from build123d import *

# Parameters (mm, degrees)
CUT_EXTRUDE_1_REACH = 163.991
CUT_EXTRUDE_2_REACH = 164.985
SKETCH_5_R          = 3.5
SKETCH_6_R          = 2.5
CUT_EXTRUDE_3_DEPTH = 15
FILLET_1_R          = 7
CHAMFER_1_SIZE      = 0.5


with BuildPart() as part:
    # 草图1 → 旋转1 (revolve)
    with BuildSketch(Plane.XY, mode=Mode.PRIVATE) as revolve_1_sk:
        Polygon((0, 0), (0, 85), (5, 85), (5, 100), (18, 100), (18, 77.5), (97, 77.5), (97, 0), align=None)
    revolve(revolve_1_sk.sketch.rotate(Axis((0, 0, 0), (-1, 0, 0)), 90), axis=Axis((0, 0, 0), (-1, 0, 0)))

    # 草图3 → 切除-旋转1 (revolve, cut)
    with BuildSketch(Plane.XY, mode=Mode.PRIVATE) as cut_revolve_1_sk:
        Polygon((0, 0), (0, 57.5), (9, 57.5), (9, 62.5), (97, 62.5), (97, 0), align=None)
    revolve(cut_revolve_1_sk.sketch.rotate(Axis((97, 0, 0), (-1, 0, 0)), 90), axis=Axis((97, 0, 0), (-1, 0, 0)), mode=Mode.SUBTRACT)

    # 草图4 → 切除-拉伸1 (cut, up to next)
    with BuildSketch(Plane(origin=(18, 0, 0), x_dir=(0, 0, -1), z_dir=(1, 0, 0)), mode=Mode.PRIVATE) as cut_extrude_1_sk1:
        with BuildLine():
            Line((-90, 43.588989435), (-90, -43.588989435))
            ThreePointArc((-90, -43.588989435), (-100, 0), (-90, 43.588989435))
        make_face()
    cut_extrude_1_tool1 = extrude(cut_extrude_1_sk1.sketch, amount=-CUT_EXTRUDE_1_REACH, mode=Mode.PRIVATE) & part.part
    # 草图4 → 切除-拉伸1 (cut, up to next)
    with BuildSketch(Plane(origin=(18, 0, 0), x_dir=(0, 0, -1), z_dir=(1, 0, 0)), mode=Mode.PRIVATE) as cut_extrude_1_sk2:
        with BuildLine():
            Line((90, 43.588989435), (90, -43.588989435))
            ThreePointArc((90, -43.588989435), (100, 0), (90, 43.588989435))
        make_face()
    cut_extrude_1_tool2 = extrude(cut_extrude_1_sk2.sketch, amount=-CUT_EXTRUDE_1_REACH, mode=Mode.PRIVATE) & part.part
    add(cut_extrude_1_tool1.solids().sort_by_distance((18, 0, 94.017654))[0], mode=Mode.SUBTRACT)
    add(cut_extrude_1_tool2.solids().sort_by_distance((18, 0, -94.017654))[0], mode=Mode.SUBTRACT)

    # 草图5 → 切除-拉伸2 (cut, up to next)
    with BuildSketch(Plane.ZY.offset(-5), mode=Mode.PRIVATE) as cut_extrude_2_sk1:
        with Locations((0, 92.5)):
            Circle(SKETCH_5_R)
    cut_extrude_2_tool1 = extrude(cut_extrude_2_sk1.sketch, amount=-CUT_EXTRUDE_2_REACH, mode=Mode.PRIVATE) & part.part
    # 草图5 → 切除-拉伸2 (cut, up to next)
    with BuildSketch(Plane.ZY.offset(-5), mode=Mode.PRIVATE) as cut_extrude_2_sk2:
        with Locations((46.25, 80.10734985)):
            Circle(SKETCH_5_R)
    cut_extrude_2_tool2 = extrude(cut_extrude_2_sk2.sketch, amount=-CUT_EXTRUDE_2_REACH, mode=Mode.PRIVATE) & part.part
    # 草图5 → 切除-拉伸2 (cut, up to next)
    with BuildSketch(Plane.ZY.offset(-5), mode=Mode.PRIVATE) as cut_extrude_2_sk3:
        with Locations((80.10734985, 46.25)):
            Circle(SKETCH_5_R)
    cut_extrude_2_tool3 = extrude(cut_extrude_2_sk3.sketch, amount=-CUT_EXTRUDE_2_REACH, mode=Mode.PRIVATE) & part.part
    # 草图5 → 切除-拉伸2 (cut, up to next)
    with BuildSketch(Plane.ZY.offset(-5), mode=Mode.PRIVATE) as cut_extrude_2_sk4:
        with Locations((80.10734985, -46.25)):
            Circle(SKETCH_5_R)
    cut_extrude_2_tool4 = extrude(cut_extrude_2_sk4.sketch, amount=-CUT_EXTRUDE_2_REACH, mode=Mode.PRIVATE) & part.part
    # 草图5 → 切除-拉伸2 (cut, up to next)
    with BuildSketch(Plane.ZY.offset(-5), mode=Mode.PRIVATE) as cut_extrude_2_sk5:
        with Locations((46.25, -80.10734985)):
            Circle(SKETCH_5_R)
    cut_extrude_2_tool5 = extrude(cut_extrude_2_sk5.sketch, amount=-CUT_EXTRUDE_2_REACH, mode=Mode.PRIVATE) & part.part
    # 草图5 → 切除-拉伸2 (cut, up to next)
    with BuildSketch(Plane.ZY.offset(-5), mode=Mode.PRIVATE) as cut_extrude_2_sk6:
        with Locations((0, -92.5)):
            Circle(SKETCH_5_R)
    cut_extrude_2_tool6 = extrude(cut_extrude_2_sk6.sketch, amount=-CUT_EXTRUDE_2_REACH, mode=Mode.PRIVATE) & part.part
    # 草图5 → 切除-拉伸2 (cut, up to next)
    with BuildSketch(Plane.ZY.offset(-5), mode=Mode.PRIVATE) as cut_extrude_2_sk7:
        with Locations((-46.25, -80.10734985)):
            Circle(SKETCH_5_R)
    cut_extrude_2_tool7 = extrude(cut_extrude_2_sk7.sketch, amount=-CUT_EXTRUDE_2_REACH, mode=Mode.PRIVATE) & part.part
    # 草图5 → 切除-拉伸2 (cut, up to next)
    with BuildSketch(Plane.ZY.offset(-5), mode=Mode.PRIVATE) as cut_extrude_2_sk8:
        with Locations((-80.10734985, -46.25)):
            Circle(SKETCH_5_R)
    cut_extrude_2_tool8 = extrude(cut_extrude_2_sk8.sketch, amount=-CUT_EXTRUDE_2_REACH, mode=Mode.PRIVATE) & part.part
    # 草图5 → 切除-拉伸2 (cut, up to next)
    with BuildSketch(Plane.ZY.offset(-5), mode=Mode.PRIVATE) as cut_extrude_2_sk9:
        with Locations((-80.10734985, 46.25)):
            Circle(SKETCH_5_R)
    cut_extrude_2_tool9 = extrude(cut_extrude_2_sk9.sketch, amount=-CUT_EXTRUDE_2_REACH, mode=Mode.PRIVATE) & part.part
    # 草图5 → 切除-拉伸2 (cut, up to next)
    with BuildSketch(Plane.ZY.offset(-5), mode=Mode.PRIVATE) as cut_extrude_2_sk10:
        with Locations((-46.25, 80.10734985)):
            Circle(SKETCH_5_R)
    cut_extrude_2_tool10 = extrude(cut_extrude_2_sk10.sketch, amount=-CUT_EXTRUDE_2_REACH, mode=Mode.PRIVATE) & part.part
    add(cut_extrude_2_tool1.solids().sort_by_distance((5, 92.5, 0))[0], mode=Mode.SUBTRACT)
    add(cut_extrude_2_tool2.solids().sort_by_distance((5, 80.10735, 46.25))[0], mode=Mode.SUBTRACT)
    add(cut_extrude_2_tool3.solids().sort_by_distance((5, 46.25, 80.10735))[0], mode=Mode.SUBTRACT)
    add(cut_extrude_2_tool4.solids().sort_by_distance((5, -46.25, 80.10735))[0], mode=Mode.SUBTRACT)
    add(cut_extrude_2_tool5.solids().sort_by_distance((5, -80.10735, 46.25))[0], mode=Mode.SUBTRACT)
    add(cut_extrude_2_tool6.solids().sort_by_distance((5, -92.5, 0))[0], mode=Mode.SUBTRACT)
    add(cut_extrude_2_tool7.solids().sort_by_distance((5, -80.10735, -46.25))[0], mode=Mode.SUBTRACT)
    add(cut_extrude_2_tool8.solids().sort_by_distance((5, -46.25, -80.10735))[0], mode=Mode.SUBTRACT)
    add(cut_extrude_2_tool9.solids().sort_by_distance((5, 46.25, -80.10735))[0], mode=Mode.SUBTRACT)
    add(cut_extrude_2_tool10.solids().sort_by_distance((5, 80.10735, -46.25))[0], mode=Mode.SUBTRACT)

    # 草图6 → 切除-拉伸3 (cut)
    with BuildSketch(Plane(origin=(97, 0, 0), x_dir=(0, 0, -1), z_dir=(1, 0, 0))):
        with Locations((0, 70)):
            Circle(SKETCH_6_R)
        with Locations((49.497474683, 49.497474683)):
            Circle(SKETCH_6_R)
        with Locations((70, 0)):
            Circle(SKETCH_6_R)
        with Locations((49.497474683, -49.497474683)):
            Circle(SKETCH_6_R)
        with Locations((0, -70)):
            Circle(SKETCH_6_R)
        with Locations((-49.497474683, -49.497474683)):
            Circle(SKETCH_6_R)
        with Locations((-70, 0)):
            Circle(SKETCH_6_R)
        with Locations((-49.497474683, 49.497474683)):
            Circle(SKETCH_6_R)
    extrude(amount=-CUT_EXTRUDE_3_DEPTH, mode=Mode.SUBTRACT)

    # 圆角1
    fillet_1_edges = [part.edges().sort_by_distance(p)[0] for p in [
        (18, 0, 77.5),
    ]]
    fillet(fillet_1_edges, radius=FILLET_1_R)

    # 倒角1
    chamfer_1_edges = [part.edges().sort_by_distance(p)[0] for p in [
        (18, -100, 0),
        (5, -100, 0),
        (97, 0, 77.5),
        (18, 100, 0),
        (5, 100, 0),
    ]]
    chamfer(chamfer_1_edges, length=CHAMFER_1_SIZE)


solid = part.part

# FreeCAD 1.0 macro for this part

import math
import FreeCAD as App
import Part
import Sketcher
from FreeCAD import Vector


def edges_at(feature, points):
    """Names of the edges that pass closest to the given points."""
    edges = feature.Shape.Edges
    near = lambda p: min(range(len(edges)), key=lambda i: edges[i].distToShape(Part.Vertex(*p))[0])
    return sorted({f"Edge{near(p) + 1}" for p in points})


def add_polygon(sketch, points):
    """Adds a closed chain of lines whose ends are joined by coincident constraints."""
    first, n = sketch.GeometryCount, len(points)
    for a, b in zip(points, points[1:] + points[:1]):
        sketch.addGeometry(Part.LineSegment(App.Vector(*a, 0), App.Vector(*b, 0)), False)
    for i in range(n):
        sketch.addConstraint(Sketcher.Constraint("Coincident", first + i, 2, first + (i + 1) % n, 1))

doc = App.newDocument("Part")
body = doc.addObject("PartDesign::Body", "Body")

# Sketch on XY plane
sketch1 = body.newObject("Sketcher::SketchObject", "Sketch")
sketch1.AttachmentSupport = (doc.getObject("XY_Plane"), [""])
sketch1.MapMode = "FlatFace"
add_polygon(sketch1, [(0, 85), (0, 0), (97, 0), (97, 78), (18, 78), (18, 100), (5, 100), (5, 85)])  # lines 0-7
sketch1.addConstraint(Sketcher.Constraint("Vertical", 0))
sketch1.addConstraint(Sketcher.Constraint("Horizontal", 1))
sketch1.addConstraint(Sketcher.Constraint("Vertical", 2))
sketch1.addConstraint(Sketcher.Constraint("Horizontal", 3))
sketch1.addConstraint(Sketcher.Constraint("Vertical", 4))
sketch1.addConstraint(Sketcher.Constraint("Horizontal", 5))
sketch1.addConstraint(Sketcher.Constraint("Vertical", 6))
sketch1.addConstraint(Sketcher.Constraint("Horizontal", 7))
sketch1.addConstraint(Sketcher.Constraint("Coincident", 0, 2, -1, 1))
sketch1.addConstraint(Sketcher.Constraint("DistanceX", 1, 1, 1, 2, 97.0))
sketch1.addConstraint(Sketcher.Constraint("DistanceX", 3, 2, 3, 1, 79.0))
sketch1.addConstraint(Sketcher.Constraint("DistanceX", 5, 2, 5, 1, 13.0))
sketch1.addConstraint(Sketcher.Constraint("DistanceY", 0, 2, 0, 1, 85.0))
sketch1.addConstraint(Sketcher.Constraint("DistanceY", 6, 2, 6, 1, 15.0))
sketch1.addConstraint(Sketcher.Constraint("DistanceY", 2, 1, 2, 2, 77.5))
revolution = body.newObject("PartDesign::Revolution", "Revolution")
revolution.Profile = sketch1
revolution.ReferenceAxis = (sketch1, ["H_Axis"])
revolution.Angle = 360

# Sketch on XY plane
sketch2 = body.newObject("Sketcher::SketchObject", "Sketch001")
sketch2.AttachmentSupport = (doc.getObject("XY_Plane"), [""])
sketch2.MapMode = "FlatFace"
add_polygon(sketch2, [(0, 58), (0, 0), (97, 0), (97, 62), (9, 62), (9, 58)])  # lines 0-5
sketch2.addConstraint(Sketcher.Constraint("Vertical", 0))
sketch2.addConstraint(Sketcher.Constraint("Horizontal", 1))
sketch2.addConstraint(Sketcher.Constraint("Vertical", 2))
sketch2.addConstraint(Sketcher.Constraint("Horizontal", 3))
sketch2.addConstraint(Sketcher.Constraint("Vertical", 4))
sketch2.addConstraint(Sketcher.Constraint("Horizontal", 5))
sketch2.addConstraint(Sketcher.Constraint("Coincident", 0, 2, -1, 1))
sketch2.addConstraint(Sketcher.Constraint("DistanceX", 1, 1, 1, 2, 97.0))
sketch2.addConstraint(Sketcher.Constraint("DistanceX", 3, 2, 3, 1, 88.0))
sketch2.addConstraint(Sketcher.Constraint("DistanceY", 4, 2, 4, 1, 5.0))
sketch2.addConstraint(Sketcher.Constraint("DistanceY", 0, 2, 0, 1, 57.5))
groove = body.newObject("PartDesign::Groove", "Groove")
groove.Profile = sketch2
groove.ReferenceAxis = (sketch2, ["H_Axis"])
groove.Angle = 360

# Sketch on YZ plane
sketch3 = body.newObject("Sketcher::SketchObject", "Sketch002")
sketch3.AttachmentSupport = (doc.getObject("YZ_Plane"), [""])
sketch3.MapMode = "FlatFace"
sketch3.AttachmentOffset = App.Placement(Vector(0, 0, 18), App.Rotation())
sketch3.addGeometry(Part.LineSegment(Vector(-44, 90, 0), Vector(44, 90, 0)), False)
sketch3.addGeometry(Part.ArcOfCircle(Part.Circle(Vector(0, 0, 0), Vector(0, 0, 1), 100), math.radians(64), math.radians(116)), False)
sketch3.addConstraint(Sketcher.Constraint("Coincident", 0, 1, 1, 2))
sketch3.addConstraint(Sketcher.Constraint("Coincident", 1, 1, 0, 2))
sketch3.addConstraint(Sketcher.Constraint("Horizontal", 0))
sketch3.addConstraint(Sketcher.Constraint("Coincident", 1, 3, -1, 1))
sketch3.addConstraint(Sketcher.Constraint("Radius", 1, 100.0))
sketch3.addConstraint(Sketcher.Constraint("DistanceY", -1, 1, 0, 1, 90.0))
pocket1 = body.newObject("PartDesign::Pocket", "Pocket")
pocket1.Profile = sketch3
pocket1.Type = "UpToFirst"

# Sketch on YZ plane
sketch4 = body.newObject("Sketcher::SketchObject", "Sketch003")
sketch4.AttachmentSupport = (doc.getObject("YZ_Plane"), [""])
sketch4.MapMode = "FlatFace"
sketch4.AttachmentOffset = App.Placement(Vector(0, 0, 18), App.Rotation())
sketch4.addGeometry(Part.LineSegment(Vector(44, -90, 0), Vector(-44, -90, 0)), False)
sketch4.addGeometry(Part.ArcOfCircle(Part.Circle(Vector(0, 0, 0), Vector(0, 0, 1), 100), math.radians(-116), math.radians(-64)), False)
sketch4.addConstraint(Sketcher.Constraint("Coincident", 0, 1, 1, 2))
sketch4.addConstraint(Sketcher.Constraint("Coincident", 1, 1, 0, 2))
sketch4.addConstraint(Sketcher.Constraint("Horizontal", 0))
sketch4.addConstraint(Sketcher.Constraint("Coincident", 1, 3, -1, 1))
sketch4.addConstraint(Sketcher.Constraint("Radius", 1, 100.0))
sketch4.addConstraint(Sketcher.Constraint("DistanceY", 0, 1, -1, 1, 90.0))
pocket2 = body.newObject("PartDesign::Pocket", "Pocket001")
pocket2.Profile = sketch4
pocket2.Type = "UpToFirst"

# Sketch on YZ plane
sketch5 = body.newObject("Sketcher::SketchObject", "Sketch004")
sketch5.AttachmentSupport = (doc.getObject("YZ_Plane"), [""])
sketch5.MapMode = "FlatFace"
sketch5.AttachmentOffset = App.Placement(Vector(0, 0, 5), App.Rotation())
sketch5.addGeometry(Part.Circle(Vector(92.5, 0, 0), Vector(0, 0, 1), 3.5), False)
sketch5.addConstraint(Sketcher.Constraint("PointOnObject", 0, 3, -1))
sketch5.addConstraint(Sketcher.Constraint("Diameter", 0, 7.0))
sketch5.addConstraint(Sketcher.Constraint("DistanceX", -1, 1, 0, 3, 92.5))
pocket3 = body.newObject("PartDesign::Pocket", "Pocket002")
pocket3.Profile = sketch5
pocket3.Type = "UpToFirst"
pocket3.Reversed = True

# Sketch on YZ plane
sketch6 = body.newObject("Sketcher::SketchObject", "Sketch005")
sketch6.AttachmentSupport = (doc.getObject("YZ_Plane"), [""])
sketch6.MapMode = "FlatFace"
sketch6.AttachmentOffset = App.Placement(Vector(0, 0, 5), App.Rotation())
sketch6.addGeometry(Part.Circle(Vector(80.1, 46.2, 0), Vector(0, 0, 1), 3.5), False)
sketch6.addConstraint(Sketcher.Constraint("Diameter", 0, 7.0))
sketch6.addConstraint(Sketcher.Constraint("DistanceY", -1, 1, 0, 3, 46.25))
sketch6.addConstraint(Sketcher.Constraint("DistanceX", -1, 1, 0, 3, 80.10735))
pocket4 = body.newObject("PartDesign::Pocket", "Pocket003")
pocket4.Profile = sketch6
pocket4.Type = "UpToFirst"
pocket4.Reversed = True

# Sketch on YZ plane
sketch7 = body.newObject("Sketcher::SketchObject", "Sketch006")
sketch7.AttachmentSupport = (doc.getObject("YZ_Plane"), [""])
sketch7.MapMode = "FlatFace"
sketch7.AttachmentOffset = App.Placement(Vector(0, 0, 5), App.Rotation())
sketch7.addGeometry(Part.Circle(Vector(46.2, 80.1, 0), Vector(0, 0, 1), 3.5), False)
sketch7.addConstraint(Sketcher.Constraint("Diameter", 0, 7.0))
sketch7.addConstraint(Sketcher.Constraint("DistanceX", -1, 1, 0, 3, 46.25))
sketch7.addConstraint(Sketcher.Constraint("DistanceY", -1, 1, 0, 3, 80.10735))
pocket5 = body.newObject("PartDesign::Pocket", "Pocket004")
pocket5.Profile = sketch7
pocket5.Type = "UpToFirst"
pocket5.Reversed = True

# Sketch on YZ plane
sketch8 = body.newObject("Sketcher::SketchObject", "Sketch007")
sketch8.AttachmentSupport = (doc.getObject("YZ_Plane"), [""])
sketch8.MapMode = "FlatFace"
sketch8.AttachmentOffset = App.Placement(Vector(0, 0, 5), App.Rotation())
sketch8.addGeometry(Part.Circle(Vector(-46.2, 80.1, 0), Vector(0, 0, 1), 3.5), False)
sketch8.addConstraint(Sketcher.Constraint("Diameter", 0, 7.0))
sketch8.addConstraint(Sketcher.Constraint("DistanceX", 0, 3, -1, 1, 46.25))
sketch8.addConstraint(Sketcher.Constraint("DistanceY", -1, 1, 0, 3, 80.10735))
pocket6 = body.newObject("PartDesign::Pocket", "Pocket005")
pocket6.Profile = sketch8
pocket6.Type = "UpToFirst"
pocket6.Reversed = True

# Sketch on YZ plane
sketch9 = body.newObject("Sketcher::SketchObject", "Sketch008")
sketch9.AttachmentSupport = (doc.getObject("YZ_Plane"), [""])
sketch9.MapMode = "FlatFace"
sketch9.AttachmentOffset = App.Placement(Vector(0, 0, 5), App.Rotation())
sketch9.addGeometry(Part.Circle(Vector(-80.1, 46.2, 0), Vector(0, 0, 1), 3.5), False)
sketch9.addConstraint(Sketcher.Constraint("Diameter", 0, 7.0))
sketch9.addConstraint(Sketcher.Constraint("DistanceY", -1, 1, 0, 3, 46.25))
sketch9.addConstraint(Sketcher.Constraint("DistanceX", 0, 3, -1, 1, 80.10735))
pocket7 = body.newObject("PartDesign::Pocket", "Pocket006")
pocket7.Profile = sketch9
pocket7.Type = "UpToFirst"
pocket7.Reversed = True

# Sketch on YZ plane
sketch10 = body.newObject("Sketcher::SketchObject", "Sketch009")
sketch10.AttachmentSupport = (doc.getObject("YZ_Plane"), [""])
sketch10.MapMode = "FlatFace"
sketch10.AttachmentOffset = App.Placement(Vector(0, 0, 5), App.Rotation())
sketch10.addGeometry(Part.Circle(Vector(-92.5, 0, 0), Vector(0, 0, 1), 3.5), False)
sketch10.addConstraint(Sketcher.Constraint("PointOnObject", 0, 3, -1))
sketch10.addConstraint(Sketcher.Constraint("Diameter", 0, 7.0))
sketch10.addConstraint(Sketcher.Constraint("DistanceX", 0, 3, -1, 1, 92.5))
pocket8 = body.newObject("PartDesign::Pocket", "Pocket007")
pocket8.Profile = sketch10
pocket8.Type = "UpToFirst"
pocket8.Reversed = True

# Sketch on YZ plane
sketch11 = body.newObject("Sketcher::SketchObject", "Sketch010")
sketch11.AttachmentSupport = (doc.getObject("YZ_Plane"), [""])
sketch11.MapMode = "FlatFace"
sketch11.AttachmentOffset = App.Placement(Vector(0, 0, 5), App.Rotation())
sketch11.addGeometry(Part.Circle(Vector(-80.1, -46.2, 0), Vector(0, 0, 1), 3.5), False)
sketch11.addConstraint(Sketcher.Constraint("Diameter", 0, 7.0))
sketch11.addConstraint(Sketcher.Constraint("DistanceY", 0, 3, -1, 1, 46.25))
sketch11.addConstraint(Sketcher.Constraint("DistanceX", 0, 3, -1, 1, 80.10735))
pocket9 = body.newObject("PartDesign::Pocket", "Pocket008")
pocket9.Profile = sketch11
pocket9.Type = "UpToFirst"
pocket9.Reversed = True

# Sketch on YZ plane
sketch12 = body.newObject("Sketcher::SketchObject", "Sketch011")
sketch12.AttachmentSupport = (doc.getObject("YZ_Plane"), [""])
sketch12.MapMode = "FlatFace"
sketch12.AttachmentOffset = App.Placement(Vector(0, 0, 5), App.Rotation())
sketch12.addGeometry(Part.Circle(Vector(-46.2, -80.1, 0), Vector(0, 0, 1), 3.5), False)
sketch12.addConstraint(Sketcher.Constraint("Diameter", 0, 7.0))
sketch12.addConstraint(Sketcher.Constraint("DistanceX", 0, 3, -1, 1, 46.25))
sketch12.addConstraint(Sketcher.Constraint("DistanceY", 0, 3, -1, 1, 80.10735))
pocket10 = body.newObject("PartDesign::Pocket", "Pocket009")
pocket10.Profile = sketch12
pocket10.Type = "UpToFirst"
pocket10.Reversed = True

# Sketch on YZ plane
sketch13 = body.newObject("Sketcher::SketchObject", "Sketch012")
sketch13.AttachmentSupport = (doc.getObject("YZ_Plane"), [""])
sketch13.MapMode = "FlatFace"
sketch13.AttachmentOffset = App.Placement(Vector(0, 0, 5), App.Rotation())
sketch13.addGeometry(Part.Circle(Vector(46.2, -80.1, 0), Vector(0, 0, 1), 3.5), False)
sketch13.addConstraint(Sketcher.Constraint("Diameter", 0, 7.0))
sketch13.addConstraint(Sketcher.Constraint("DistanceX", -1, 1, 0, 3, 46.25))
sketch13.addConstraint(Sketcher.Constraint("DistanceY", 0, 3, -1, 1, 80.10735))
pocket11 = body.newObject("PartDesign::Pocket", "Pocket010")
pocket11.Profile = sketch13
pocket11.Type = "UpToFirst"
pocket11.Reversed = True

# Sketch on YZ plane
sketch14 = body.newObject("Sketcher::SketchObject", "Sketch013")
sketch14.AttachmentSupport = (doc.getObject("YZ_Plane"), [""])
sketch14.MapMode = "FlatFace"
sketch14.AttachmentOffset = App.Placement(Vector(0, 0, 5), App.Rotation())
sketch14.addGeometry(Part.Circle(Vector(80.1, -46.2, 0), Vector(0, 0, 1), 3.5), False)
sketch14.addConstraint(Sketcher.Constraint("Diameter", 0, 7.0))
sketch14.addConstraint(Sketcher.Constraint("DistanceY", 0, 3, -1, 1, 46.25))
sketch14.addConstraint(Sketcher.Constraint("DistanceX", -1, 1, 0, 3, 80.10735))
pocket12 = body.newObject("PartDesign::Pocket", "Pocket011")
pocket12.Profile = sketch14
pocket12.Type = "UpToFirst"
pocket12.Reversed = True

# Sketch on YZ plane
sketch15 = body.newObject("Sketcher::SketchObject", "Sketch014")
sketch15.AttachmentSupport = (doc.getObject("YZ_Plane"), [""])
sketch15.MapMode = "FlatFace"
sketch15.AttachmentOffset = App.Placement(Vector(0, 0, 97), App.Rotation())
sketch15.addGeometry(Part.Circle(Vector(70, 0, 0), Vector(0, 0, 1), 2.5), False)
sketch15.addGeometry(Part.Circle(Vector(49.5, -49.5, 0), Vector(0, 0, 1), 2.5), False)
sketch15.addGeometry(Part.Circle(Vector(0, -70, 0), Vector(0, 0, 1), 2.5), False)
sketch15.addGeometry(Part.Circle(Vector(-49.5, -49.5, 0), Vector(0, 0, 1), 2.5), False)
sketch15.addGeometry(Part.Circle(Vector(-70, 0, 0), Vector(0, 0, 1), 2.5), False)
sketch15.addGeometry(Part.Circle(Vector(-49.5, 49.5, 0), Vector(0, 0, 1), 2.5), False)
sketch15.addGeometry(Part.Circle(Vector(0, 70, 0), Vector(0, 0, 1), 2.5), False)
sketch15.addGeometry(Part.Circle(Vector(49.5, 49.5, 0), Vector(0, 0, 1), 2.5), False)
sketch15.addConstraint(Sketcher.Constraint("Equal", 0, 1))
sketch15.addConstraint(Sketcher.Constraint("Equal", 1, 2))
sketch15.addConstraint(Sketcher.Constraint("Equal", 2, 3))
sketch15.addConstraint(Sketcher.Constraint("Equal", 3, 4))
sketch15.addConstraint(Sketcher.Constraint("Equal", 4, 5))
sketch15.addConstraint(Sketcher.Constraint("Equal", 5, 6))
sketch15.addConstraint(Sketcher.Constraint("Equal", 6, 7))
sketch15.addConstraint(Sketcher.Constraint("Symmetric", 0, 3, 4, 3, -1, 1))
sketch15.addConstraint(Sketcher.Constraint("Symmetric", 1, 3, 5, 3, -1, 1))
sketch15.addConstraint(Sketcher.Constraint("Symmetric", 2, 3, 6, 3, -1, 1))
sketch15.addConstraint(Sketcher.Constraint("Symmetric", 3, 3, 7, 3, -1, 1))
sketch15.addConstraint(Sketcher.Constraint("Symmetric", 1, 3, 3, 3, -2))
sketch15.addConstraint(Sketcher.Constraint("PointOnObject", 0, 3, -1))
sketch15.addConstraint(Sketcher.Constraint("PointOnObject", 2, 3, -2))
sketch15.addConstraint(Sketcher.Constraint("Diameter", 0, 5.0))
sketch15.addConstraint(Sketcher.Constraint("DistanceX", -1, 1, 0, 3, 70.0))
sketch15.addConstraint(Sketcher.Constraint("DistanceY", 2, 3, -1, 1, 70.0))
sketch15.addConstraint(Sketcher.Constraint("DistanceX", 3, 3, 1, 3, 98.994949))
sketch15.addConstraint(Sketcher.Constraint("DistanceY", 3, 3, 5, 3, 98.994949))
pocket13 = body.newObject("PartDesign::Pocket", "Pocket012")
pocket13.Profile = sketch15
pocket13.Length = 15
doc.recompute()

fillet = body.newObject("PartDesign::Fillet", "Fillet")
fillet.Base = (pocket13, edges_at(pocket13, [(18, 0, 77.5)]))
fillet.Radius = 7
doc.recompute()

chamfer = body.newObject("PartDesign::Chamfer", "Chamfer")
chamfer.Base = (fillet, edges_at(fillet, [
    (18, -100, 0),
    (5, -100, 0),
    (97, 0, 77.5),
    (18, 100, 0),
    (5, 100, 0),
]))
chamfer.Size = 0.5

doc.recompute()
